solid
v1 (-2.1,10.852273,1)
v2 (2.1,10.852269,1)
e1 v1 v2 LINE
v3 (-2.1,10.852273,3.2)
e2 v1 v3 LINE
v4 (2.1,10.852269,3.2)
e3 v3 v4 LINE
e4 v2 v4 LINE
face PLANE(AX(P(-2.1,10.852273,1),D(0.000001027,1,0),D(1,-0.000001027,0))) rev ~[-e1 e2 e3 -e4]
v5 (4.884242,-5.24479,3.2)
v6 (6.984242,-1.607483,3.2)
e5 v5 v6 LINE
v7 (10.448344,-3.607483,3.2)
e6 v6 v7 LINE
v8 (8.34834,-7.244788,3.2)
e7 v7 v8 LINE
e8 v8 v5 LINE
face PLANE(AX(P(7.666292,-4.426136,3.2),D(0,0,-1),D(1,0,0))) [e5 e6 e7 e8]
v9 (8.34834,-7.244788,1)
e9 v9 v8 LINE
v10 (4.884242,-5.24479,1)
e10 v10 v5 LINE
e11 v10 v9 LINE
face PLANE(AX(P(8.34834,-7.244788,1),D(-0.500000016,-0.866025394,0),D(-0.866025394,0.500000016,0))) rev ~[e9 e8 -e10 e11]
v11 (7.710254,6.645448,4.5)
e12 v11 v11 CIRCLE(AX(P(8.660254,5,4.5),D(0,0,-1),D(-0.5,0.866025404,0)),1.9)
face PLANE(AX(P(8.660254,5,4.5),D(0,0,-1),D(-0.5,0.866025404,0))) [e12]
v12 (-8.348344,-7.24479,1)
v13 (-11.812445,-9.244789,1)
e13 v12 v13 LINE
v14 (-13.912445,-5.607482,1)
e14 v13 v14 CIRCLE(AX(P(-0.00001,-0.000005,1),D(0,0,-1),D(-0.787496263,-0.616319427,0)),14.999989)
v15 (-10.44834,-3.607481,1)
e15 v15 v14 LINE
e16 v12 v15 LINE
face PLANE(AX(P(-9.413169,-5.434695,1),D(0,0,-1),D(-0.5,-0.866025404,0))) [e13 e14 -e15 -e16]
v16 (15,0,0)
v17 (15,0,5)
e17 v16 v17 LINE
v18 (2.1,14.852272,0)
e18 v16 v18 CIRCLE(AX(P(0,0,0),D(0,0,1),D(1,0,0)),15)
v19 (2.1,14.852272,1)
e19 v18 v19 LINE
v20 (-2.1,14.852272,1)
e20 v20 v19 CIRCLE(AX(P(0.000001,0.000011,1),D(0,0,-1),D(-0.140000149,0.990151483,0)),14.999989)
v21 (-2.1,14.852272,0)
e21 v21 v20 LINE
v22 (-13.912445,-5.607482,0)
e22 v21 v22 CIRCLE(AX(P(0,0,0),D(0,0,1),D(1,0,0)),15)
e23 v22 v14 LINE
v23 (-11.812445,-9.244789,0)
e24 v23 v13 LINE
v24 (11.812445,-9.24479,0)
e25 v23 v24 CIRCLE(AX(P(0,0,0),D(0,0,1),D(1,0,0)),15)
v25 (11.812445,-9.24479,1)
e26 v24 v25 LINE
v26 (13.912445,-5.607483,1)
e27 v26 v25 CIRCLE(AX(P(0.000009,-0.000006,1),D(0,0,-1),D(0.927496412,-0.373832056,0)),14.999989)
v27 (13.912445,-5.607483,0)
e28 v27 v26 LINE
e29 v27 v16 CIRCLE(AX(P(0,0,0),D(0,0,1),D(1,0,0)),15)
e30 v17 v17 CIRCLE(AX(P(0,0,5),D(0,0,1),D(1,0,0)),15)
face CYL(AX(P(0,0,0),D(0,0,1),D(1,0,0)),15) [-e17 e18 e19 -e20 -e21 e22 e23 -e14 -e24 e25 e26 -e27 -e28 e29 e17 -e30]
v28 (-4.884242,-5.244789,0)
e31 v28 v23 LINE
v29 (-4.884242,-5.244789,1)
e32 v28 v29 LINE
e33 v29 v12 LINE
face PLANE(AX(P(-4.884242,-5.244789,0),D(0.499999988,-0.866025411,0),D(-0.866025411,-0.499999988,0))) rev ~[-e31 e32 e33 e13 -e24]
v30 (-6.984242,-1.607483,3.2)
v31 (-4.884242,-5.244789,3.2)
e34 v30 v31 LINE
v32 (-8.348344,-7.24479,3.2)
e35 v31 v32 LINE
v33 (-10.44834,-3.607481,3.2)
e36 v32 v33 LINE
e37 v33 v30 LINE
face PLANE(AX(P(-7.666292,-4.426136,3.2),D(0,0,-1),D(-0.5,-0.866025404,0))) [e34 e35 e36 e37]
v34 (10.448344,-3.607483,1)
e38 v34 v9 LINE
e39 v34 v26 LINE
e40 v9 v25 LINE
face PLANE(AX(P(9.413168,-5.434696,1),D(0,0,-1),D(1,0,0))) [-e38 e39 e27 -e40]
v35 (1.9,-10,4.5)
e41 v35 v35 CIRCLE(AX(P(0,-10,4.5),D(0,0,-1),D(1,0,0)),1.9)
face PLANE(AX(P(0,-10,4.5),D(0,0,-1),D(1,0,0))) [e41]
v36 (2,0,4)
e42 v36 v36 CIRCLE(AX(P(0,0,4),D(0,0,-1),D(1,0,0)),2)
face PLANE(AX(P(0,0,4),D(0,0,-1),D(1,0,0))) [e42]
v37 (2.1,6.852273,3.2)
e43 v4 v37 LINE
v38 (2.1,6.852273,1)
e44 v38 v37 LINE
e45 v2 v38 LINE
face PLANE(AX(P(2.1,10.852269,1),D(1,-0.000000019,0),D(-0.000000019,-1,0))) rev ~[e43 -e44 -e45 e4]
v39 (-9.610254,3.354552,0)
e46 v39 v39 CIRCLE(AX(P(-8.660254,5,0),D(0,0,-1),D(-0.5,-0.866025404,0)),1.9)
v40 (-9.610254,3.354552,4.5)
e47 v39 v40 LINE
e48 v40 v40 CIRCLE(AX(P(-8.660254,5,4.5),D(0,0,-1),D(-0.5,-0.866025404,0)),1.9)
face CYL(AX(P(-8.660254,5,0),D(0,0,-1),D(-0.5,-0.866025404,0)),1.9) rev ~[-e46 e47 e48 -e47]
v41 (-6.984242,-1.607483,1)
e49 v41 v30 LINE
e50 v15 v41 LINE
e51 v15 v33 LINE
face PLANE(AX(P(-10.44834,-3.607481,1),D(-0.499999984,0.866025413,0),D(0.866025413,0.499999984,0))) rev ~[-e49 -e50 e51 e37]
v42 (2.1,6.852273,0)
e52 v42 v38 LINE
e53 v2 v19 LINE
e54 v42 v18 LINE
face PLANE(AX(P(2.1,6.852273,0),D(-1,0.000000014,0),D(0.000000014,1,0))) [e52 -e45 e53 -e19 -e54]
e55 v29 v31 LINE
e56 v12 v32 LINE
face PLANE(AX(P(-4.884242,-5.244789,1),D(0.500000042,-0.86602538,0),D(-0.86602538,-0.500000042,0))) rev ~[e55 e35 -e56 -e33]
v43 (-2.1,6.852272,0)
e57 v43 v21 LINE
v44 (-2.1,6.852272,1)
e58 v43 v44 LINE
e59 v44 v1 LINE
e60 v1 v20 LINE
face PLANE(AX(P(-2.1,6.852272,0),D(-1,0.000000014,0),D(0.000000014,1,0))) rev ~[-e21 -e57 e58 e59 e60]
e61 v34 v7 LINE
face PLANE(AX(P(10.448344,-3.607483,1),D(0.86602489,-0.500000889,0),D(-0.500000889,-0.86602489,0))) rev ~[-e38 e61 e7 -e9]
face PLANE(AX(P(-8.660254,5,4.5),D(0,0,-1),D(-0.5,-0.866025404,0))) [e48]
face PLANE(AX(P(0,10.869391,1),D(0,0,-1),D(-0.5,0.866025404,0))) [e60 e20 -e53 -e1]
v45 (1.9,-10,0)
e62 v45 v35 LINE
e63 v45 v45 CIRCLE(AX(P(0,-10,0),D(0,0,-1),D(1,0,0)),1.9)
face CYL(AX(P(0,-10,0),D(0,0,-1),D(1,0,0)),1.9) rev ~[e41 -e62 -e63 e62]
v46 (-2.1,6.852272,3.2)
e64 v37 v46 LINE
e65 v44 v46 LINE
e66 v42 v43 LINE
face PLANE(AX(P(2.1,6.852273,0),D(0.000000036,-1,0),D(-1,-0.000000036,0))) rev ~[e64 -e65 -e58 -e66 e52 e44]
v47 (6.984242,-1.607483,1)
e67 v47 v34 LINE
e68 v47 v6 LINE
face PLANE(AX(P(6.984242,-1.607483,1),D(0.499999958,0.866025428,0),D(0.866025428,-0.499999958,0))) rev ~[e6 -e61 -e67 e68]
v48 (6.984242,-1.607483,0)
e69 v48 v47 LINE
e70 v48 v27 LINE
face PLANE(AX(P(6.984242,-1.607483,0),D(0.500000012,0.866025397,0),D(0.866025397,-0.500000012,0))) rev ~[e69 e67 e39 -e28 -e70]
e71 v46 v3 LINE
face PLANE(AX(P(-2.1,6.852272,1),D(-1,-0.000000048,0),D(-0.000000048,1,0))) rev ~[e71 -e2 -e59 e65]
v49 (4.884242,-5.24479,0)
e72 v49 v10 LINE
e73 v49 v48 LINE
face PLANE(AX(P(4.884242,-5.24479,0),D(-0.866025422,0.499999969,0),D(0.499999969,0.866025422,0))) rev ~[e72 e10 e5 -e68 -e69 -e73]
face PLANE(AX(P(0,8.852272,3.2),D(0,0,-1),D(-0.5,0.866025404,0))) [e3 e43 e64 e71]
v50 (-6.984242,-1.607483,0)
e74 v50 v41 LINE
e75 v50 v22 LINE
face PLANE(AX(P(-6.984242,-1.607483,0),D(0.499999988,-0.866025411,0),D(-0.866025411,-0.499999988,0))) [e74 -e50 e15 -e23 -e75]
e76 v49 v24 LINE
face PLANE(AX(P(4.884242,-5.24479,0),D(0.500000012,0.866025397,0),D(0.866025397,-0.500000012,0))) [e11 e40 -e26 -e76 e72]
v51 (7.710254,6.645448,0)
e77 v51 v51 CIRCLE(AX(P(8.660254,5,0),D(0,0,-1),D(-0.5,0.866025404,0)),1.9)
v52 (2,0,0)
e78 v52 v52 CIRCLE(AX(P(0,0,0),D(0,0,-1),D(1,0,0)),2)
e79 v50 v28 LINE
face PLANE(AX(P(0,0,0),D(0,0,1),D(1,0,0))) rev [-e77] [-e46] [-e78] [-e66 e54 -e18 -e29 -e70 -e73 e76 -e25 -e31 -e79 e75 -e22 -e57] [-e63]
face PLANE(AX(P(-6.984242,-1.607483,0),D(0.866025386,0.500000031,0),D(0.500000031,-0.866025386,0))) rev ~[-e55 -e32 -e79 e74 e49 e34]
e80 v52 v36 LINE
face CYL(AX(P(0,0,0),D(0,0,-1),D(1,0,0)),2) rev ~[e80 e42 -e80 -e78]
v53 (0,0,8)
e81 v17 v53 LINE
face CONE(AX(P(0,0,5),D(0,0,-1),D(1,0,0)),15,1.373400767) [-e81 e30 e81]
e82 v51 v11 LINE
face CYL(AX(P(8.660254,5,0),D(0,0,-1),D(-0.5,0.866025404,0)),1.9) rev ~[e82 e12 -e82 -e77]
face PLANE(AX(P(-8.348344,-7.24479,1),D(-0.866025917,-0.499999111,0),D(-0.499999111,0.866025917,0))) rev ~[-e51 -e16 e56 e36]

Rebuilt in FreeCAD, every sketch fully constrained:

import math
import FreeCAD as App
import Part
import Sketcher

V = App.Vector
Q = App.Units.Quantity

doc = App.newDocument("Part")
body = doc.addObject("PartDesign::Body", "Body")

# Sketch on XZ plane
sketch1 = body.newObject("Sketcher::SketchObject", "Sketch")
sketch1.AttachmentSupport = (doc.getObject("XZ_Plane"), [""])
sketch1.MapMode = "FlatFace"
sketch1.addGeometry(Part.LineSegment(V(0, 0, 0), V(15, 0, 0)), False)
sketch1.addGeometry(Part.LineSegment(V(15, 0, 0), V(15, 5, 0)), False)
sketch1.addGeometry(Part.LineSegment(V(15, 5, 0), V(0, 8, 0)), False)
sketch1.addGeometry(Part.LineSegment(V(0, 8, 0), V(0, 0, 0)), False)
sketch1.addConstraint(Sketcher.Constraint("Coincident", 0, 2, 1, 1))
sketch1.addConstraint(Sketcher.Constraint("Coincident", 1, 2, 2, 1))
sketch1.addConstraint(Sketcher.Constraint("Coincident", 2, 2, 3, 1))
sketch1.addConstraint(Sketcher.Constraint("Coincident", 3, 2, 0, 1))
sketch1.addConstraint(Sketcher.Constraint("Horizontal", 0))
sketch1.addConstraint(Sketcher.Constraint("Vertical", 1))
sketch1.addConstraint(Sketcher.Constraint("Vertical", 3))
sketch1.addConstraint(Sketcher.Constraint("Coincident", 3, 2, -1, 1))
sketch1.addConstraint(Sketcher.Constraint("DistanceX", 0, 1, 0, 2, Q("15 mm")))
sketch1.addConstraint(Sketcher.Constraint("DistanceY", 1, 1, 1, 2, Q("5 mm")))
sketch1.addConstraint(Sketcher.Constraint("DistanceY", 3, 2, 3, 1, Q("8 mm")))
revolution = body.newObject("PartDesign::Revolution", "Revolution")
revolution.Profile = sketch1
revolution.ReferenceAxis = (sketch1, ["V_Axis"])
revolution.Angle = 360

# Sketch on XY plane
sketch2 = body.newObject("Sketcher::SketchObject", "Sketch001")
sketch2.AttachmentSupport = (doc.getObject("XY_Plane"), [""])
sketch2.MapMode = "FlatFace"
sketch2.addGeometry(Part.Circle(V(0, -10, 0), V(0, 0, 1), 1.9), False)
sketch2.addConstraint(Sketcher.Constraint("PointOnObject", 0, 3, -2))
sketch2.addConstraint(Sketcher.Constraint("Diameter", 0, Q("3.8 mm")))
sketch2.addConstraint(Sketcher.Constraint("DistanceY", 0, 3, -1, 1, Q("10 mm")))
pocket1 = body.newObject("PartDesign::Pocket", "Pocket")
pocket1.Profile = sketch2
pocket1.Length = 4.5
pocket1.Reversed = True
doc.recompute()

polarpattern = body.newObject("PartDesign::PolarPattern", "PolarPattern")
polarpattern.Originals = [pocket1]
polarpattern.Axis = (doc.getObject("Z_Axis"), [""])
polarpattern.Angle = 360
polarpattern.Occurrences = 3
body.Tip = polarpattern

# Sketch on XY plane
sketch3 = body.newObject("Sketcher::SketchObject", "Sketch002")
sketch3.AttachmentSupport = (doc.getObject("XY_Plane"), [""])
sketch3.MapMode = "FlatFace"
sketch3.addGeometry(Part.LineSegment(V(4.884242, -5.24479, 0), V(6.984242, -1.607483, 0)), False)
sketch3.addGeometry(Part.LineSegment(V(6.984242, -1.607483, 0), V(13.912445, -5.607483, 0)), False)
sketch3.addGeometry(Part.ArcOfCircle(Part.Circle(V(0.000009, -0.000006, 0), V(0, 0, 1), 14.999989), math.radians(-38.047851), math.radians(-21.952145)), False)
sketch3.addGeometry(Part.LineSegment(V(11.812445, -9.24479, 0), V(4.884242, -5.24479, 0)), False)
sketch3.addConstraint(Sketcher.Constraint("Coincident", 0, 2, 1, 1))
sketch3.addConstraint(Sketcher.Constraint("Coincident", 1, 2, 2, 2))
sketch3.addConstraint(Sketcher.Constraint("Coincident", 2, 1, 3, 1))
sketch3.addConstraint(Sketcher.Constraint("Coincident", 3, 2, 0, 1))
sketch3.addConstraint(Sketcher.Constraint("Perpendicular", 0, 1))
sketch3.addConstraint(Sketcher.Constraint("Parallel", 1, 3))
sketch3.addConstraint(Sketcher.Constraint("Equal", 1, 3))
sketch3.addConstraint(Sketcher.Constraint("Angle", 0, Q("60.000002 deg")))
sketch3.addConstraint(Sketcher.Constraint("Distance", 1, Q("8 mm")))
sketch3.addConstraint(Sketcher.Constraint("Distance", 0, Q("4.2 mm")))
sketch3.addConstraint(Sketcher.Constraint("Radius", 2, Q("14.999989 mm")))
sketch3.addConstraint(Sketcher.Constraint("DistanceY", 2, 1, -1, 1, Q("9.24479 mm")))
sketch3.addConstraint(Sketcher.Constraint("DistanceX", -1, 1, 0, 2, Q("6.984242 mm")))
pocket2 = body.newObject("PartDesign::Pocket", "Pocket001")
pocket2.Profile = sketch3
pocket2.Length = 1
pocket2.Reversed = True

# Sketch on XY plane
sketch4 = body.newObject("Sketcher::SketchObject", "Sketch003")
sketch4.AttachmentSupport = (doc.getObject("XY_Plane"), [""])
sketch4.MapMode = "FlatFace"
sketch4.AttachmentOffset = App.Placement(V(0, 0, 1), App.Rotation())
sketch4.addGeometry(Part.LineSegment(V(4.884242, -5.24479, 0), V(6.984242, -1.607483, 0)), False)
sketch4.addGeometry(Part.LineSegment(V(6.984242, -1.607483, 0), V(10.448344, -3.607483, 0)), False)
sketch4.addGeometry(Part.LineSegment(V(10.448344, -3.607483, 0), V(8.34834, -7.244788, 0)), False)
sketch4.addGeometry(Part.LineSegment(V(8.34834, -7.244788, 0), V(4.884242, -5.24479, 0)), False)
sketch4.addConstraint(Sketcher.Constraint("Coincident", 0, 2, 1, 1))
sketch4.addConstraint(Sketcher.Constraint("Coincident", 1, 2, 2, 1))
sketch4.addConstraint(Sketcher.Constraint("Coincident", 2, 2, 3, 1))
sketch4.addConstraint(Sketcher.Constraint("Coincident", 3, 2, 0, 1))
sketch4.addConstraint(Sketcher.Constraint("Perpendicular", 0, 1))
sketch4.addConstraint(Sketcher.Constraint("Perpendicular", 1, 2))
sketch4.addConstraint(Sketcher.Constraint("Perpendicular", 2, 3))
sketch4.addConstraint(Sketcher.Constraint("Angle", 0, Q("60.000002 deg")))
sketch4.addConstraint(Sketcher.Constraint("Distance", 1, Q("4 mm")))
sketch4.addConstraint(Sketcher.Constraint("Distance", 0, Q("4.2 mm")))
sketch4.addConstraint(Sketcher.Constraint("DistanceX", -1, 1, 2, 2, Q("8.34834 mm")))
sketch4.addConstraint(Sketcher.Constraint("DistanceY", 3, 2, -1, 1, Q("5.24479 mm")))
pocket3 = body.newObject("PartDesign::Pocket", "Pocket002")
pocket3.Profile = sketch4
pocket3.Length = 2.2
pocket3.Reversed = True
doc.recompute()

polarpattern2 = body.newObject("PartDesign::PolarPattern", "PolarPattern001")
polarpattern2.Originals = [pocket3, pocket2]
polarpattern2.Axis = (doc.getObject("Z_Axis"), [""])
polarpattern2.Angle = 360
polarpattern2.Occurrences = 3
body.Tip = polarpattern2

# Sketch on XY plane
sketch5 = body.newObject("Sketcher::SketchObject", "Sketch004")
sketch5.AttachmentSupport = (doc.getObject("XY_Plane"), [""])
sketch5.MapMode = "FlatFace"
sketch5.addGeometry(Part.Circle(V(0, 0, 0), V(0, 0, 1), 2), False)
sketch5.addConstraint(Sketcher.Constraint("Coincident", 0, 3, -1, 1))
sketch5.addConstraint(Sketcher.Constraint("Diameter", 0, Q("4 mm")))
pocket4 = body.newObject("PartDesign::Pocket", "Pocket003")
pocket4.Profile = sketch5
pocket4.Length = 4
pocket4.Reversed = True

doc.recompute()
